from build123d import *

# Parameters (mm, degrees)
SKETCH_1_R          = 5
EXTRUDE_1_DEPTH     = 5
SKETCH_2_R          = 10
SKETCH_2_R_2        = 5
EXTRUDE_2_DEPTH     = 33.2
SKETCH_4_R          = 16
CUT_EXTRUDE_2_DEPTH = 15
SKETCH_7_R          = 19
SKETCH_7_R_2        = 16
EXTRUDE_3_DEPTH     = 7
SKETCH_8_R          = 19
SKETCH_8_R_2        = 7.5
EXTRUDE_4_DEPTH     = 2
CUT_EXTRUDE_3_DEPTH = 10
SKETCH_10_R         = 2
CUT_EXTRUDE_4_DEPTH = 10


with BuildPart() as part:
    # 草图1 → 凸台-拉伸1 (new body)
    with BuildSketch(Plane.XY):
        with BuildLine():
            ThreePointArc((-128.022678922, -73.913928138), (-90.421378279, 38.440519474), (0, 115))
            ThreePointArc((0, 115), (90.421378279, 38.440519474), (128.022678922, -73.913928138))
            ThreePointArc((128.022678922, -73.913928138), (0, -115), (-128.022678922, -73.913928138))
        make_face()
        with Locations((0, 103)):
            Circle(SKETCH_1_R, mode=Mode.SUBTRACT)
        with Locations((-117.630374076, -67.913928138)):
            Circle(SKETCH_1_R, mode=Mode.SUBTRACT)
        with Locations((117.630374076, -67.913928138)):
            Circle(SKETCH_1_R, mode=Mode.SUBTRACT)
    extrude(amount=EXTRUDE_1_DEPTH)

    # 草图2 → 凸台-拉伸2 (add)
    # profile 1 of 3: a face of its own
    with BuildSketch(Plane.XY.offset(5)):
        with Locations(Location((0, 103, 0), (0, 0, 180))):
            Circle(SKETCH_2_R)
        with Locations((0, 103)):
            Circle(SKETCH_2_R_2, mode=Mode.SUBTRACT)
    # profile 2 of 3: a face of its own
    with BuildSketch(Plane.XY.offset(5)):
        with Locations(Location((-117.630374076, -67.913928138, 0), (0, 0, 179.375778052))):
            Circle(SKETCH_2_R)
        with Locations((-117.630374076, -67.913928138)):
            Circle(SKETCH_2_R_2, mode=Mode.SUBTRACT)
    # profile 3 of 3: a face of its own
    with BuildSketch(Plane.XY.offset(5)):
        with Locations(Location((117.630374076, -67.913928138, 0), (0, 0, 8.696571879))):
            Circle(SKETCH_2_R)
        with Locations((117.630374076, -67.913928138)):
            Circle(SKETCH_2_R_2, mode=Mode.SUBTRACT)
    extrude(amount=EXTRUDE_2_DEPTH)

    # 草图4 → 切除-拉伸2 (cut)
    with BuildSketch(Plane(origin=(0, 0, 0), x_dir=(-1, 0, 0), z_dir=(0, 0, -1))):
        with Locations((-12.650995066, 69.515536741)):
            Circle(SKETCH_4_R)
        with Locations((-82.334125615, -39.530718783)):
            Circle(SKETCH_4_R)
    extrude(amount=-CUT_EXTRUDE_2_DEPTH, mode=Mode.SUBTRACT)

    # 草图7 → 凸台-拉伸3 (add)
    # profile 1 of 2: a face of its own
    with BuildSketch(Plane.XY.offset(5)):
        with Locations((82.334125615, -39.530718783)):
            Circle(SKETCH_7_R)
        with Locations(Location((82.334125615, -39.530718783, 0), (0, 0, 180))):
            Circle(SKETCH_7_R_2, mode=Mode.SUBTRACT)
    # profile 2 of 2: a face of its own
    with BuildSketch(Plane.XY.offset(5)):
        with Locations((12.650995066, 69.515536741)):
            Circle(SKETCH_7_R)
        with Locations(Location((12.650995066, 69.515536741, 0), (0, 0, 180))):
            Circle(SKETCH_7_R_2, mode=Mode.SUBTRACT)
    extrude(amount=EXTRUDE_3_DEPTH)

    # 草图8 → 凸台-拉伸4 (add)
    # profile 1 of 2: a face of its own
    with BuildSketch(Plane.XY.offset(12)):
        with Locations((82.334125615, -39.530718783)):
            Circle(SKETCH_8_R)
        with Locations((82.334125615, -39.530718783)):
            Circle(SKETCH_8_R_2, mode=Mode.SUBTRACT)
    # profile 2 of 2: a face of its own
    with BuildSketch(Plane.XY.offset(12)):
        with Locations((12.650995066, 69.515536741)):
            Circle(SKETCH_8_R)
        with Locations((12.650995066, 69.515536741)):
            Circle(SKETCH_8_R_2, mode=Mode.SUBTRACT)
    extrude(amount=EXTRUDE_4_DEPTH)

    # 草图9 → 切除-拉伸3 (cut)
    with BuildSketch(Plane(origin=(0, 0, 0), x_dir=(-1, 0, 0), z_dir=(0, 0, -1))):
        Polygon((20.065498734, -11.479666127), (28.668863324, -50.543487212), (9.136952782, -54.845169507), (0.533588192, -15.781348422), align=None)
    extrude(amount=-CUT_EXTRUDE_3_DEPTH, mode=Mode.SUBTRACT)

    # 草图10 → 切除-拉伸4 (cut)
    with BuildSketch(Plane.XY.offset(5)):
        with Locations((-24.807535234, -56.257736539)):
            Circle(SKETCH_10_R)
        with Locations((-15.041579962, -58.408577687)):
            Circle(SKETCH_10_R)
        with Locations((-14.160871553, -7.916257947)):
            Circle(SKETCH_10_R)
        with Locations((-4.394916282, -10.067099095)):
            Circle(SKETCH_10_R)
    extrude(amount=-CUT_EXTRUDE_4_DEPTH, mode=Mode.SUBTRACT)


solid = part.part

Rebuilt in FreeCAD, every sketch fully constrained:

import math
import FreeCAD as App
import Part
import Sketcher
from FreeCAD import Vector
Q = App.Units.Quantity


def add_polygon(sketch, points):
    """Adds a closed chain of lines whose ends are joined by coincident constraints."""
    first, n = sketch.GeometryCount, len(points)
    for a, b in zip(points, points[1:] + points[:1]):
        sketch.addGeometry(Part.LineSegment(App.Vector(*a, 0), App.Vector(*b, 0)), False)
    for i in range(n):
        sketch.addConstraint(Sketcher.Constraint("Coincident", first + i, 2, first + (i + 1) % n, 1))

doc = App.newDocument("Part")
params = doc.addObject("Spreadsheet::Sheet", "Params")
for row, (alias, value) in enumerate([
    ("sketch1_diameter", "10 mm"),
    ("sketch1_radius", "220 mm"),
    ("pad1_length", "5 mm"),
    ("sketch2_diameter", "20 mm"),
    ("sketch2_diameter2", "10 mm"),
    ("pad2_length", "33.2 mm"),
    ("sketch3_diameter", "32 mm"),
    ("pocket1_length", "15 mm"),
    ("sketch4_diameter", "38 mm"),
    ("sketch4_diameter2", "32 mm"),
    ("pad3_length", "7 mm"),
    ("sketch5_diameter", "38 mm"),
    ("sketch5_diameter2", "15 mm"),
    ("pad4_length", "2 mm"),
    ("sketch6_length", "40 mm"),
    ("sketch6_length2", "20 mm"),
    ("pocket2_length", "10 mm"),
    ("sketch7_diameter", "4 mm"),
    ("pocket3_length", "10 mm"),
], start=1):
    params.set(f"A{row}", alias)
    params.set(f"B{row}", "=" + value)
    params.setAlias(f"B{row}", alias)

body = doc.addObject("PartDesign::Body", "Body")

# Sketch on XY plane
sketch1 = body.newObject("Sketcher::SketchObject", "Sketch")
sketch1.AttachmentSupport = (doc.getObject("XY_Plane"), [""])
sketch1.MapMode = "FlatFace"
sketch1.addGeometry([
    Part.ArcOfCircle(Part.Circle(Vector(92, -85, 0), Vector(0, 0, 1), 220), math.radians(115), math.radians(177)),  # 0
    Part.ArcOfCircle(Part.Circle(Vector(0, 105, 0), Vector(0, 0, 1), 220), math.radians(-126), math.radians(-54)),  # 1
    Part.ArcOfCircle(Part.Circle(Vector(-92, -85, 0), Vector(0, 0, 1), 220), math.radians(3), math.radians(65)),  # 2
    Part.Circle(Vector(118, -68, 0), Vector(0, 0, 1), 5),  # 3
    Part.Circle(Vector(-118, -68, 0), Vector(0, 0, 1), 5),  # 4
    Part.Circle(Vector(0, 103, 0), Vector(0, 0, 1), 5),  # 5
], False)
sketch1.addConstraint([
    Sketcher.Constraint("Coincident", 0, 2, 1, 1),
    Sketcher.Constraint("Coincident", 1, 2, 2, 1),
    Sketcher.Constraint("Coincident", 2, 2, 0, 1),
    Sketcher.Constraint("Equal", 0, 1),
    Sketcher.Constraint("Equal", 1, 2),
    Sketcher.Constraint("Equal", 3, 4),
    Sketcher.Constraint("Equal", 4, 5),
    Sketcher.Constraint("Symmetric", 0, 3, 2, 3, -2),
    Sketcher.Constraint("Symmetric", 3, 3, 4, 3, -2),
    Sketcher.Constraint("PointOnObject", 1, 3, -2),
    Sketcher.Constraint("PointOnObject", 5, 3, -2),
    Sketcher.Constraint("Diameter", 3, Q("10 mm")),
    Sketcher.Constraint("Radius", 0, Q("220 mm")),
    Sketcher.Constraint("DistanceY", -1, 1, 1, 3, Q("105 mm")),
    Sketcher.Constraint("DistanceY", -1, 1, 5, 3, Q("103 mm")),
    Sketcher.Constraint("DistanceY", -1, 1, 2, 2, Q("115 mm")),
    Sketcher.Constraint("DistanceY", 0, 2, 4, 3, Q("6 mm")),
    Sketcher.Constraint("DistanceX", -1, 1, 0, 3, Q("91.698918 mm")),
    Sketcher.Constraint("DistanceX", 4, 3, 3, 3, Q("235.260748 mm")),
])
sketch1.setExpression("Constraints[11]", "Params.sketch1_diameter")
sketch1.setExpression("Constraints[12]", "Params.sketch1_radius")
pad1 = body.newObject("PartDesign::Pad", "Pad")
pad1.Profile = sketch1
pad1.setExpression("Length", "Params.pad1_length")

# Sketch on XY plane
sketch2 = body.newObject("Sketcher::SketchObject", "Sketch001")
sketch2.AttachmentSupport = (doc.getObject("XY_Plane"), [""])
sketch2.MapMode = "FlatFace"
sketch2.AttachmentOffset = App.Placement(Vector(0, 0, 5), App.Rotation())
sketch2.addGeometry([
    Part.Circle(Vector(0, 103, 0), Vector(0, 0, 1), 10),  # 0
    Part.Circle(Vector(0, 103, 0), Vector(0, 0, 1), 5),  # 1
    Part.Circle(Vector(-118, -68, 0), Vector(0, 0, 1), 10),  # 2
    Part.Circle(Vector(-118, -68, 0), Vector(0, 0, 1), 5),  # 3
    Part.Circle(Vector(118, -68, 0), Vector(0, 0, 1), 10),  # 4
    Part.Circle(Vector(118, -68, 0), Vector(0, 0, 1), 5),  # 5
], False)
sketch2.addConstraint([
    Sketcher.Constraint("Coincident", 1, 3, 0, 3),
    Sketcher.Constraint("Coincident", 3, 3, 2, 3),
    Sketcher.Constraint("Coincident", 5, 3, 4, 3),
    Sketcher.Constraint("Equal", 0, 2),
    Sketcher.Constraint("Equal", 1, 3),
    Sketcher.Constraint("Equal", 2, 4),
    Sketcher.Constraint("Equal", 3, 5),
    Sketcher.Constraint("Symmetric", 2, 3, 4, 3, -2),
    Sketcher.Constraint("PointOnObject", 0, 3, -2),
    Sketcher.Constraint("Diameter", 0, Q("20 mm")),
    Sketcher.Constraint("Diameter", 1, Q("10 mm")),
    Sketcher.Constraint("DistanceY", -1, 1, 0, 3, Q("103 mm")),
    Sketcher.Constraint("DistanceY", 2, 3, -1, 1, Q("67.913928 mm")),
    Sketcher.Constraint("DistanceX", 2, 3, 4, 3, Q("235.260748 mm")),
])
sketch2.setExpression("Constraints[9]", "Params.sketch2_diameter")
sketch2.setExpression("Constraints[10]", "Params.sketch2_diameter2")
pad2 = body.newObject("PartDesign::Pad", "Pad001")
pad2.Profile = sketch2
pad2.setExpression("Length", "Params.pad2_length")

# Sketch on XY plane
sketch3 = body.newObject("Sketcher::SketchObject", "Sketch002")
sketch3.AttachmentSupport = (doc.getObject("XY_Plane"), [""])
sketch3.MapMode = "FlatFace"
sketch3.addGeometry([
    Part.Circle(Vector(13, 70, 0), Vector(0, 0, 1), 16),
    Part.Circle(Vector(82, -40, 0), Vector(0, 0, 1), 16),
], False)
sketch3.addConstraint([
    Sketcher.Constraint("Equal", 0, 1),
    Sketcher.Constraint("Diameter", 0, Q("32 mm")),
    Sketcher.Constraint("DistanceY", 1, 3, -1, 1, Q("39.530719 mm")),
    Sketcher.Constraint("DistanceX", 0, 3, 1, 3, Q("69.683131 mm")),
    Sketcher.Constraint("DistanceX", -1, 1, 0, 3, Q("12.650995 mm")),
    Sketcher.Constraint("DistanceY", -1, 1, 0, 3, Q("69.515537 mm")),
])
sketch3.setExpression("Constraints[1]", "Params.sketch3_diameter")
pocket1 = body.newObject("PartDesign::Pocket", "Pocket")
pocket1.Profile = sketch3
pocket1.setExpression("Length", "Params.pocket1_length")
pocket1.Reversed = True

# Sketch on XY plane
sketch4 = body.newObject("Sketcher::SketchObject", "Sketch003")
sketch4.AttachmentSupport = (doc.getObject("XY_Plane"), [""])
sketch4.MapMode = "FlatFace"
sketch4.AttachmentOffset = App.Placement(Vector(0, 0, 5), App.Rotation())
sketch4.addGeometry([
    Part.Circle(Vector(82, -40, 0), Vector(0, 0, 1), 19),
    Part.Circle(Vector(82, -40, 0), Vector(0, 0, 1), 16),
    Part.Circle(Vector(13, 70, 0), Vector(0, 0, 1), 19),
    Part.Circle(Vector(13, 70, 0), Vector(0, 0, 1), 16),
], False)
sketch4.addConstraint([
    Sketcher.Constraint("Coincident", 1, 3, 0, 3),
    Sketcher.Constraint("Coincident", 3, 3, 2, 3),
    Sketcher.Constraint("Equal", 0, 2),
    Sketcher.Constraint("Equal", 1, 3),
    Sketcher.Constraint("Diameter", 0, Q("38 mm")),
    Sketcher.Constraint("Diameter", 1, Q("32 mm")),
    Sketcher.Constraint("DistanceY", 0, 3, -1, 1, Q("39.530719 mm")),
    Sketcher.Constraint("DistanceX", 2, 3, 0, 3, Q("69.683131 mm")),
    Sketcher.Constraint("DistanceX", -1, 1, 0, 3, Q("82.334126 mm")),
    Sketcher.Constraint("DistanceY", -1, 1, 2, 3, Q("69.515537 mm")),
])
sketch4.setExpression("Constraints[4]", "Params.sketch4_diameter")
sketch4.setExpression("Constraints[5]", "Params.sketch4_diameter2")
pad3 = body.newObject("PartDesign::Pad", "Pad002")
pad3.Profile = sketch4
pad3.setExpression("Length", "Params.pad3_length")

# Sketch on XY plane
sketch5 = body.newObject("Sketcher::SketchObject", "Sketch004")
sketch5.AttachmentSupport = (doc.getObject("XY_Plane"), [""])
sketch5.MapMode = "FlatFace"
sketch5.AttachmentOffset = App.Placement(Vector(0, 0, 12), App.Rotation())
sketch5.addGeometry([
    Part.Circle(Vector(82, -40, 0), Vector(0, 0, 1), 19),
    Part.Circle(Vector(82, -40, 0), Vector(0, 0, 1), 8),
    Part.Circle(Vector(13, 70, 0), Vector(0, 0, 1), 19),
    Part.Circle(Vector(13, 70, 0), Vector(0, 0, 1), 8),
], False)
sketch5.addConstraint([
    Sketcher.Constraint("Coincident", 1, 3, 0, 3),
    Sketcher.Constraint("Coincident", 3, 3, 2, 3),
    Sketcher.Constraint("Equal", 0, 2),
    Sketcher.Constraint("Equal", 1, 3),
    Sketcher.Constraint("Diameter", 0, Q("38 mm")),
    Sketcher.Constraint("Diameter", 1, Q("15 mm")),
    Sketcher.Constraint("DistanceY", 0, 3, -1, 1, Q("39.530719 mm")),
    Sketcher.Constraint("DistanceX", 2, 3, 0, 3, Q("69.683131 mm")),
    Sketcher.Constraint("DistanceX", -1, 1, 0, 3, Q("82.334126 mm")),
    Sketcher.Constraint("DistanceY", -1, 1, 2, 3, Q("69.515537 mm")),
])
sketch5.setExpression("Constraints[4]", "Params.sketch5_diameter")
sketch5.setExpression("Constraints[5]", "Params.sketch5_diameter2")
pad4 = body.newObject("PartDesign::Pad", "Pad003")
pad4.Profile = sketch5
pad4.setExpression("Length", "Params.pad4_length")

# Sketch on XY plane
sketch6 = body.newObject("Sketcher::SketchObject", "Sketch005")
sketch6.AttachmentSupport = (doc.getObject("XY_Plane"), [""])
sketch6.MapMode = "FlatFace"
add_polygon(sketch6, [(-29, -51), (-20, -11), (-1, -16), (-9, -55)])  # lines 0-3
sketch6.addConstraint([
    Sketcher.Constraint("Perpendicular", 0, 1),
    Sketcher.Constraint("Perpendicular", 1, 2),
    Sketcher.Constraint("Perpendicular", 2, 3),
    Sketcher.Constraint("Distance", 0, Q("40 mm")),
    Sketcher.Constraint("Distance", 1, Q("20 mm")),
    Sketcher.Constraint("DistanceX", 0, 2, -1, 1, Q("20.065499 mm")),
    Sketcher.Constraint("DistanceX", 1, 2, -1, 1, Q("0.533588 mm")),
    Sketcher.Constraint("DistanceY", 1, 2, -1, 1, Q("15.781348 mm")),
])
sketch6.setExpression("Constraints[7]", "Params.sketch6_length")
sketch6.setExpression("Constraints[8]", "Params.sketch6_length2")
pocket2 = body.newObject("PartDesign::Pocket", "Pocket001")
pocket2.Profile = sketch6
pocket2.setExpression("Length", "Params.pocket2_length")
pocket2.Reversed = True

# Sketch on XY plane
sketch7 = body.newObject("Sketcher::SketchObject", "Sketch006")
sketch7.AttachmentSupport = (doc.getObject("XY_Plane"), [""])
sketch7.MapMode = "FlatFace"
sketch7.AttachmentOffset = App.Placement(Vector(0, 0, 5), App.Rotation())
sketch7.addGeometry([
    Part.Circle(Vector(-24.8, -56.3, 0), Vector(0, 0, 1), 2),
    Part.Circle(Vector(-15, -58.4, 0), Vector(0, 0, 1), 2),
    Part.Circle(Vector(-14.2, -7.9, 0), Vector(0, 0, 1), 2),
    Part.Circle(Vector(-4.4, -10.1, 0), Vector(0, 0, 1), 2),
], False)
sketch7.addConstraint([
    Sketcher.Constraint("Equal", 0, 1),
    Sketcher.Constraint("Equal", 1, 2),
    Sketcher.Constraint("Equal", 2, 3),
    Sketcher.Constraint("Diameter", 0, Q("4 mm")),
    Sketcher.Constraint("DistanceY", 3, 3, -1, 1, Q("10.067099 mm")),
    Sketcher.Constraint("DistanceX", 1, 3, -1, 1, Q("15.04158 mm")),
    Sketcher.Constraint("DistanceX", 2, 3, -1, 1, Q("14.160872 mm")),
    Sketcher.Constraint("DistanceY", 1, 3, 0, 3, Q("2.150841 mm")),
    Sketcher.Constraint("DistanceY", 0, 3, 2, 3, Q("48.341479 mm")),
    Sketcher.Constraint("DistanceY", 3, 3, 2, 3, Q("2.150841 mm")),
    Sketcher.Constraint("DistanceX", 0, 3, 3, 3, Q("20.412619 mm")),
    Sketcher.Constraint("DistanceX", 0, 3, -1, 1, Q("24.807535 mm")),
])
sketch7.setExpression("Constraints[3]", "Params.sketch7_diameter")
pocket3 = body.newObject("PartDesign::Pocket", "Pocket002")
pocket3.Profile = sketch7
pocket3.setExpression("Length", "Params.pocket3_length")

doc.recompute()
